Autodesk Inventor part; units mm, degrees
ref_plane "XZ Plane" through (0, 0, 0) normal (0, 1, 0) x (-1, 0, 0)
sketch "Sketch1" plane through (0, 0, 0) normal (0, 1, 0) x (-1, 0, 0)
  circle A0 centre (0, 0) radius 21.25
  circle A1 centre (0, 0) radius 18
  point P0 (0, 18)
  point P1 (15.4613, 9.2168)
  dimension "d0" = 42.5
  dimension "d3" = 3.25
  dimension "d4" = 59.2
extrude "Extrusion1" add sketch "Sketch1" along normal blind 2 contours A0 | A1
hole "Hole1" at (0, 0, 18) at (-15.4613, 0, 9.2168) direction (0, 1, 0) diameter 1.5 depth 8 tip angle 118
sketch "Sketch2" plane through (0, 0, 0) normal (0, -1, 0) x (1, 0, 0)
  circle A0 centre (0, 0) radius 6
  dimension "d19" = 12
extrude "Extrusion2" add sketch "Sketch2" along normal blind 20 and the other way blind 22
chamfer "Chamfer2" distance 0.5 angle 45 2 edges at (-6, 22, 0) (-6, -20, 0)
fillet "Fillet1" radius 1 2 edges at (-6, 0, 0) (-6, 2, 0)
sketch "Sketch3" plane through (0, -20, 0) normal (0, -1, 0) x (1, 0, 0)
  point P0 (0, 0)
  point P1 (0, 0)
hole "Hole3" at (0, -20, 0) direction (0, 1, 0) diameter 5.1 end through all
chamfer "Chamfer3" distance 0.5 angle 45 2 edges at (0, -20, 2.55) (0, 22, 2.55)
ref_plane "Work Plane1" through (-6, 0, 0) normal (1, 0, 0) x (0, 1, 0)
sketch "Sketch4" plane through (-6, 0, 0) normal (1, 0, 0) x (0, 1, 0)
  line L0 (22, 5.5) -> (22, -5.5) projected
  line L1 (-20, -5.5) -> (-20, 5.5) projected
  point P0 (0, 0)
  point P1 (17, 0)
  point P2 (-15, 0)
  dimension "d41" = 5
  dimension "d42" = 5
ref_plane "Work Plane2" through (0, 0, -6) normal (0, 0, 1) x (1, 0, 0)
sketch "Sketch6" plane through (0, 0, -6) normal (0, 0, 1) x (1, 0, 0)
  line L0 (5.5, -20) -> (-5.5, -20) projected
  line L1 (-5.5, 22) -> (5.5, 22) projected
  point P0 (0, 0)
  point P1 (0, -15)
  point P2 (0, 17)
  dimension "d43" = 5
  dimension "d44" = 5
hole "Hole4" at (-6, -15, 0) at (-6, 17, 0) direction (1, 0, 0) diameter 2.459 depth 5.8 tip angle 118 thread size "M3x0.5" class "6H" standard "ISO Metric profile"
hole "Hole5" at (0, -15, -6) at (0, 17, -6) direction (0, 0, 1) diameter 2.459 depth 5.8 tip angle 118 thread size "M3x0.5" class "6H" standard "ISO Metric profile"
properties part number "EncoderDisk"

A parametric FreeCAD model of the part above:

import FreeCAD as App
import Part
import Sketcher

V = App.Vector
Q = App.Units.Quantity


def edges_at(feature, points):
    """Names of the edges that pass closest to the given points."""
    edges = feature.Shape.Edges
    near = lambda p: min(range(len(edges)), key=lambda i: edges[i].distToShape(Part.Vertex(*p))[0])
    return sorted({f"Edge{near(p) + 1}" for p in points})

doc = App.newDocument("Part")
params = doc.addObject("Spreadsheet::Sheet", "Params")
for row, (alias, value) in enumerate([
    ("sketch1_diameter", "42.5 mm"),
    ("pad1_length", "2 mm"),
    ("sketch2_diameter", "1.5 mm"),
    ("hole_diameter", "1.5 mm"),
    ("hole_depth", "8 mm"),
    ("sketch3_diameter", "12 mm"),
    ("pad2_length", "20 mm"),
    ("pad2_length2", "22 mm"),
    ("chamfer_size", "0.5 mm"),
    ("fillet_radius", "1 mm"),
    ("sketch4_diameter", "5.1 mm"),
    ("hole2_diameter", "5.1 mm"),
    ("chamfer2_size", "0.5 mm"),
    ("hole3_diameter", "2.459 mm"),
    ("hole3_depth", "5.8 mm"),
    ("hole4_diameter", "2.459 mm"),
    ("hole4_depth", "5.8 mm"),
], start=1):
    params.set(f"A{row}", alias)
    params.set(f"B{row}", "=" + value)
    params.setAlias(f"B{row}", alias)

body = doc.addObject("PartDesign::Body", "Body")

# Sketch on XZ plane
sketch1 = body.newObject("Sketcher::SketchObject", "Sketch")
sketch1.AttachmentSupport = (doc.getObject("XZ_Plane"), [""])
sketch1.MapMode = "FlatFace"
sketch1.addGeometry(Part.Circle(V(0, 0, 0), V(0, 0, 1), 21), False)
sketch1.addConstraint(Sketcher.Constraint("Coincident", 0, 3, -1, 1))
sketch1.addConstraint(Sketcher.Constraint("Diameter", 0, Q("42.5 mm")))
sketch1.setExpression("Constraints[1]", "Params.sketch1_diameter")
pad1 = body.newObject("PartDesign::Pad", "Pad")
pad1.Profile = sketch1
pad1.setExpression("Length", "Params.pad1_length")
pad1.Reversed = True

# Sketch on XZ plane
sketch2 = body.newObject("Sketcher::SketchObject", "Sketch001")
sketch2.AttachmentSupport = (doc.getObject("XZ_Plane"), [""])
sketch2.MapMode = "FlatFace"
sketch2.addGeometry(Part.Circle(V(0, 18, 0), V(0, 0, 1), 0.8), False)
sketch2.addGeometry(Part.Circle(V(-15.5, 9.2, 0), V(0, 0, 1), 0.8), False)
sketch2.addConstraint(Sketcher.Constraint("Equal", 0, 1))
sketch2.addConstraint(Sketcher.Constraint("PointOnObject", 0, 3, -2))
sketch2.addConstraint(Sketcher.Constraint("Diameter", 0, Q("1.5 mm")))
sketch2.addConstraint(Sketcher.Constraint("DistanceY", -1, 1, 0, 3, Q("18 mm")))
sketch2.addConstraint(Sketcher.Constraint("DistanceX", 1, 3, -1, 1, Q("15.4613 mm")))
sketch2.addConstraint(Sketcher.Constraint("DistanceY", -1, 1, 1, 3, Q("9.2168 mm")))
sketch2.setExpression("Constraints[2]", "Params.sketch2_diameter")
doc.recompute()
hole = body.newObject("PartDesign::Hole", "Hole")
hole.Profile = sketch2
hole.ThreadType = "None"
hole.setExpression("Diameter", "Params.hole_diameter")
hole.DepthType = "Dimension"
hole.setExpression("Depth", "Params.hole_depth")
hole.DrillPoint = "Angled"
hole.DrillPointAngle = 118

# Sketch on XZ plane
sketch3 = body.newObject("Sketcher::SketchObject", "Sketch002")
sketch3.AttachmentSupport = (doc.getObject("XZ_Plane"), [""])
sketch3.MapMode = "FlatFace"
sketch3.addGeometry(Part.Circle(V(0, 0, 0), V(0, 0, 1), 6), False)
sketch3.addConstraint(Sketcher.Constraint("Coincident", 0, 3, -1, 1))
sketch3.addConstraint(Sketcher.Constraint("Diameter", 0, Q("12 mm")))
sketch3.setExpression("Constraints[1]", "Params.sketch3_diameter")
pad2 = body.newObject("PartDesign::Pad", "Pad001")
pad2.Profile = sketch3
pad2.Type = "TwoLengths"
pad2.setExpression("Length", "Params.pad2_length")
pad2.setExpression("Length2", "Params.pad2_length2")
doc.recompute()

chamfer = body.newObject("PartDesign::Chamfer", "Chamfer")
chamfer.Base = (pad2, edges_at(pad2, [(-6, 22, 0), (-6, -20, 0)]))
chamfer.setExpression("Size", "Params.chamfer_size")
doc.recompute()

fillet = body.newObject("PartDesign::Fillet", "Fillet")
fillet.Base = (chamfer, edges_at(chamfer, [(-6, 0, 0), (-6, 2, 0)]))
fillet.setExpression("Radius", "Params.fillet_radius")

# Sketch on XZ plane
sketch4 = body.newObject("Sketcher::SketchObject", "Sketch003")
sketch4.AttachmentSupport = (doc.getObject("XZ_Plane"), [""])
sketch4.MapMode = "FlatFace"
sketch4.AttachmentOffset = App.Placement(V(0, 0, 20), App.Rotation())
sketch4.addGeometry(Part.Circle(V(0, 0, 0), V(0, 0, 1), 2.5), False)
sketch4.addConstraint(Sketcher.Constraint("Coincident", 0, 3, -1, 1))
sketch4.addConstraint(Sketcher.Constraint("Diameter", 0, Q("5.1 mm")))
sketch4.setExpression("Constraints[1]", "Params.sketch4_diameter")
doc.recompute()
hole2 = body.newObject("PartDesign::Hole", "Hole001")
hole2.Profile = sketch4
hole2.ThreadType = "None"
hole2.setExpression("Diameter", "Params.hole2_diameter")
hole2.DepthType = "ThroughAll"
doc.recompute()

chamfer2 = body.newObject("PartDesign::Chamfer", "Chamfer001")
chamfer2.Base = (hole2, edges_at(hole2, [(0, -20, 2.55), (0, 22, 2.55)]))
chamfer2.setExpression("Size", "Params.chamfer2_size")

# Sketch on YZ plane
sketch5 = body.newObject("Sketcher::SketchObject", "Sketch004")
sketch5.AttachmentSupport = (doc.getObject("YZ_Plane"), [""])
sketch5.MapMode = "FlatFace"
sketch5.AttachmentOffset = App.Placement(V(0, 0, -6), App.Rotation())
sketch5.addGeometry(Part.Circle(V(-15, 0, 0), V(0, 0, 1), 1.2), False)
sketch5.addGeometry(Part.Circle(V(17, 0, 0), V(0, 0, 1), 1.2), False)
sketch5.addConstraint(Sketcher.Constraint("Equal", 0, 1))
sketch5.addConstraint(Sketcher.Constraint("PointOnObject", 0, 3, -1))
sketch5.addConstraint(Sketcher.Constraint("PointOnObject", 1, 3, -1))
sketch5.addConstraint(Sketcher.Constraint("Diameter", 0, Q("2.459 mm")))
sketch5.addConstraint(Sketcher.Constraint("DistanceX", 0, 3, -1, 1, Q("15 mm")))
sketch5.addConstraint(Sketcher.Constraint("DistanceX", -1, 1, 1, 3, Q("17 mm")))
doc.recompute()
hole3 = body.newObject("PartDesign::Hole", "Hole002")
hole3.Profile = sketch5
hole3.ThreadType = "None"
hole3.setExpression("Diameter", "Params.hole3_diameter")
hole3.DepthType = "Dimension"
hole3.setExpression("Depth", "Params.hole3_depth")
hole3.DrillPoint = "Angled"
hole3.DrillPointAngle = 118
hole3.Reversed = True

# Sketch on XY plane
sketch6 = body.newObject("Sketcher::SketchObject", "Sketch005")
sketch6.AttachmentSupport = (doc.getObject("XY_Plane"), [""])
sketch6.MapMode = "FlatFace"
sketch6.AttachmentOffset = App.Placement(V(0, 0, -6), App.Rotation())
sketch6.addGeometry(Part.Circle(V(0, -15, 0), V(0, 0, 1), 1.2), False)
sketch6.addGeometry(Part.Circle(V(0, 17, 0), V(0, 0, 1), 1.2), False)
sketch6.addConstraint(Sketcher.Constraint("Equal", 0, 1))
sketch6.addConstraint(Sketcher.Constraint("PointOnObject", 0, 3, -2))
sketch6.addConstraint(Sketcher.Constraint("PointOnObject", 1, 3, -2))
sketch6.addConstraint(Sketcher.Constraint("Diameter", 0, Q("2.459 mm")))
sketch6.addConstraint(Sketcher.Constraint("DistanceY", 0, 3, -1, 1, Q("15 mm")))
sketch6.addConstraint(Sketcher.Constraint("DistanceY", -1, 1, 1, 3, Q("17 mm")))
doc.recompute()
hole4 = body.newObject("PartDesign::Hole", "Hole003")
hole4.Profile = sketch6
hole4.ThreadType = "None"
hole4.setExpression("Diameter", "Params.hole4_diameter")
hole4.DepthType = "Dimension"
hole4.setExpression("Depth", "Params.hole4_depth")
hole4.DrillPoint = "Angled"
hole4.DrillPointAngle = 118
hole4.Reversed = True

doc.recompute()
